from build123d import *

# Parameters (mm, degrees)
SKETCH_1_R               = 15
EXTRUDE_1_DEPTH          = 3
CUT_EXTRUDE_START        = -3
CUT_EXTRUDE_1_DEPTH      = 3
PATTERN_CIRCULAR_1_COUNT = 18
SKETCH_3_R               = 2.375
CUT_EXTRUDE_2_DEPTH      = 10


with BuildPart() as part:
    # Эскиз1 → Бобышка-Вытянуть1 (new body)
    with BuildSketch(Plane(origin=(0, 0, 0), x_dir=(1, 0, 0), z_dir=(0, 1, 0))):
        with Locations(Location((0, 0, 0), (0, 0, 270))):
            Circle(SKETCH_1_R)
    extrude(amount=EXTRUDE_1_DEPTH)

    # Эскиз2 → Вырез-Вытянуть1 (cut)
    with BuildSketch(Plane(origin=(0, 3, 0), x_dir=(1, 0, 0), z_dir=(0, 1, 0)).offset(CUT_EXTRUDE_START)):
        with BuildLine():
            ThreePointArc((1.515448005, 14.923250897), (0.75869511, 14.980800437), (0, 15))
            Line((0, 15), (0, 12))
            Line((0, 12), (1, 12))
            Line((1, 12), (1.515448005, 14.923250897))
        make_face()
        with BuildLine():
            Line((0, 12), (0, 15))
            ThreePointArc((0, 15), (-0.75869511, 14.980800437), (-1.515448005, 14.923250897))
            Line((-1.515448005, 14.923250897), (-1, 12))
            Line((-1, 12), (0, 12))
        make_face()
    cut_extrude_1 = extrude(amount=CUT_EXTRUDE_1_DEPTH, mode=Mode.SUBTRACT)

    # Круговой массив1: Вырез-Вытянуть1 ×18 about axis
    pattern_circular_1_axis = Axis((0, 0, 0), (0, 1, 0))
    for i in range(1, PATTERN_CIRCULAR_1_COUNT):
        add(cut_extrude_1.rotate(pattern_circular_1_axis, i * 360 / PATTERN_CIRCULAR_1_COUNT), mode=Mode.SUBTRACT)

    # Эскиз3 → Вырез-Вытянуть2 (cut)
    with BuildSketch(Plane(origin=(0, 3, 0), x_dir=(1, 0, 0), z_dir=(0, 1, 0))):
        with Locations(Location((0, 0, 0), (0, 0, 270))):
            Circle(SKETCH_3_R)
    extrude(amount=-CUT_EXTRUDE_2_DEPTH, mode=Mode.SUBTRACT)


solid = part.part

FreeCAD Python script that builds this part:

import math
import FreeCAD as App
import Part
import Sketcher

V = App.Vector
Q = App.Units.Quantity

doc = App.newDocument("Part")
body = doc.addObject("PartDesign::Body", "Body")

sketch1 = body.newObject("Sketcher::SketchObject", "Sketch")
sketch1.AttachmentSupport = (doc.getObject("XZ_Plane"), [""])
sketch1.MapMode = "FlatFace"
sketch1.addGeometry(Part.Circle(V(0, 0, 0), V(0, 0, 1), 15), False)
sketch1.addConstraint(Sketcher.Constraint("Coincident", 0, 3, -1, 1))
sketch1.addConstraint(Sketcher.Constraint("Diameter", 0, 30.0))
pad1 = body.newObject("PartDesign::Pad", "Pad")
pad1.Profile = sketch1
pad1.Length = 3
pad1.Reversed = True

sketch2 = body.newObject("Sketcher::SketchObject", "Sketch001")
sketch2.AttachmentSupport = (doc.getObject("XZ_Plane"), [""])
sketch2.MapMode = "FlatFace"
sketch2.addGeometry(Part.ArcOfCircle(Part.Circle(V(0, 0, 0), V(0, 0, 1), 15), math.radians(-90), math.radians(-84.2)), False)
sketch2.addGeometry(Part.ArcOfCircle(Part.Circle(V(0, 0, 0), V(0, 0, 1), 15), math.radians(-95.8), math.radians(-90)), False)
sketch2.addGeometry(Part.LineSegment(V(-1.5, -14.9, 0), V(-1, -12, 0)), False)
sketch2.addGeometry(Part.LineSegment(V(-1, -12, 0), V(1, -12, 0)), False)
sketch2.addGeometry(Part.LineSegment(V(1, -12, 0), V(1.5, -14.9, 0)), False)
sketch2.addConstraint(Sketcher.Constraint("Tangent", 0, 1, 1, 2))
sketch2.addConstraint(Sketcher.Constraint("Coincident", 1, 1, 2, 1))
sketch2.addConstraint(Sketcher.Constraint("Coincident", 2, 2, 3, 1))
sketch2.addConstraint(Sketcher.Constraint("Coincident", 3, 2, 4, 1))
sketch2.addConstraint(Sketcher.Constraint("Coincident", 4, 2, 0, 2))
sketch2.addConstraint(Sketcher.Constraint("Horizontal", 3))
sketch2.addConstraint(Sketcher.Constraint("Coincident", 0, 3, -1, 1))
sketch2.addConstraint(Sketcher.Constraint("Equal", 0, 1))
sketch2.addConstraint(Sketcher.Constraint("PointOnObject", 0, 1, -2))
sketch2.addConstraint(Sketcher.Constraint("Horizontal", 1, 1, 4, 2))
sketch2.addConstraint(Sketcher.Constraint("Equal", 2, 4))
sketch2.addConstraint(Sketcher.Constraint("Radius", 0, 15.0))
sketch2.addConstraint(Sketcher.Constraint("DistanceX", 3, 1, 3, 2, 2.0))
sketch2.addConstraint(Sketcher.Constraint("Angle", 2, Q("80 deg")))
sketch2.addConstraint(Sketcher.Constraint("DistanceY", 2, 2, -1, 1, 12.0))
pocket1 = body.newObject("PartDesign::Pocket", "Pocket")
pocket1.Profile = sketch2
pocket1.Length = 3
doc.recompute()

polarpattern = body.newObject("PartDesign::PolarPattern", "PolarPattern")
polarpattern.Originals = [pocket1]
polarpattern.Axis = (doc.getObject("Y_Axis"), [""])
polarpattern.Angle = 360
polarpattern.Occurrences = 18
body.Tip = polarpattern

sketch3 = body.newObject("Sketcher::SketchObject", "Sketch002")
sketch3.AttachmentSupport = (doc.getObject("XZ_Plane"), [""])
sketch3.MapMode = "FlatFace"
sketch3.AttachmentOffset = App.Placement(V(0, 0, -3), App.Rotation())
sketch3.addGeometry(Part.Circle(V(0, 0, 0), V(0, 0, 1), 2.4), False)
sketch3.addConstraint(Sketcher.Constraint("Coincident", 0, 3, -1, 1))
sketch3.addConstraint(Sketcher.Constraint("Diameter", 0, 4.75))
pocket2 = body.newObject("PartDesign::Pocket", "Pocket001")
pocket2.Profile = sketch3
pocket2.Length = 10
pocket2.Reversed = True

doc.recompute()
